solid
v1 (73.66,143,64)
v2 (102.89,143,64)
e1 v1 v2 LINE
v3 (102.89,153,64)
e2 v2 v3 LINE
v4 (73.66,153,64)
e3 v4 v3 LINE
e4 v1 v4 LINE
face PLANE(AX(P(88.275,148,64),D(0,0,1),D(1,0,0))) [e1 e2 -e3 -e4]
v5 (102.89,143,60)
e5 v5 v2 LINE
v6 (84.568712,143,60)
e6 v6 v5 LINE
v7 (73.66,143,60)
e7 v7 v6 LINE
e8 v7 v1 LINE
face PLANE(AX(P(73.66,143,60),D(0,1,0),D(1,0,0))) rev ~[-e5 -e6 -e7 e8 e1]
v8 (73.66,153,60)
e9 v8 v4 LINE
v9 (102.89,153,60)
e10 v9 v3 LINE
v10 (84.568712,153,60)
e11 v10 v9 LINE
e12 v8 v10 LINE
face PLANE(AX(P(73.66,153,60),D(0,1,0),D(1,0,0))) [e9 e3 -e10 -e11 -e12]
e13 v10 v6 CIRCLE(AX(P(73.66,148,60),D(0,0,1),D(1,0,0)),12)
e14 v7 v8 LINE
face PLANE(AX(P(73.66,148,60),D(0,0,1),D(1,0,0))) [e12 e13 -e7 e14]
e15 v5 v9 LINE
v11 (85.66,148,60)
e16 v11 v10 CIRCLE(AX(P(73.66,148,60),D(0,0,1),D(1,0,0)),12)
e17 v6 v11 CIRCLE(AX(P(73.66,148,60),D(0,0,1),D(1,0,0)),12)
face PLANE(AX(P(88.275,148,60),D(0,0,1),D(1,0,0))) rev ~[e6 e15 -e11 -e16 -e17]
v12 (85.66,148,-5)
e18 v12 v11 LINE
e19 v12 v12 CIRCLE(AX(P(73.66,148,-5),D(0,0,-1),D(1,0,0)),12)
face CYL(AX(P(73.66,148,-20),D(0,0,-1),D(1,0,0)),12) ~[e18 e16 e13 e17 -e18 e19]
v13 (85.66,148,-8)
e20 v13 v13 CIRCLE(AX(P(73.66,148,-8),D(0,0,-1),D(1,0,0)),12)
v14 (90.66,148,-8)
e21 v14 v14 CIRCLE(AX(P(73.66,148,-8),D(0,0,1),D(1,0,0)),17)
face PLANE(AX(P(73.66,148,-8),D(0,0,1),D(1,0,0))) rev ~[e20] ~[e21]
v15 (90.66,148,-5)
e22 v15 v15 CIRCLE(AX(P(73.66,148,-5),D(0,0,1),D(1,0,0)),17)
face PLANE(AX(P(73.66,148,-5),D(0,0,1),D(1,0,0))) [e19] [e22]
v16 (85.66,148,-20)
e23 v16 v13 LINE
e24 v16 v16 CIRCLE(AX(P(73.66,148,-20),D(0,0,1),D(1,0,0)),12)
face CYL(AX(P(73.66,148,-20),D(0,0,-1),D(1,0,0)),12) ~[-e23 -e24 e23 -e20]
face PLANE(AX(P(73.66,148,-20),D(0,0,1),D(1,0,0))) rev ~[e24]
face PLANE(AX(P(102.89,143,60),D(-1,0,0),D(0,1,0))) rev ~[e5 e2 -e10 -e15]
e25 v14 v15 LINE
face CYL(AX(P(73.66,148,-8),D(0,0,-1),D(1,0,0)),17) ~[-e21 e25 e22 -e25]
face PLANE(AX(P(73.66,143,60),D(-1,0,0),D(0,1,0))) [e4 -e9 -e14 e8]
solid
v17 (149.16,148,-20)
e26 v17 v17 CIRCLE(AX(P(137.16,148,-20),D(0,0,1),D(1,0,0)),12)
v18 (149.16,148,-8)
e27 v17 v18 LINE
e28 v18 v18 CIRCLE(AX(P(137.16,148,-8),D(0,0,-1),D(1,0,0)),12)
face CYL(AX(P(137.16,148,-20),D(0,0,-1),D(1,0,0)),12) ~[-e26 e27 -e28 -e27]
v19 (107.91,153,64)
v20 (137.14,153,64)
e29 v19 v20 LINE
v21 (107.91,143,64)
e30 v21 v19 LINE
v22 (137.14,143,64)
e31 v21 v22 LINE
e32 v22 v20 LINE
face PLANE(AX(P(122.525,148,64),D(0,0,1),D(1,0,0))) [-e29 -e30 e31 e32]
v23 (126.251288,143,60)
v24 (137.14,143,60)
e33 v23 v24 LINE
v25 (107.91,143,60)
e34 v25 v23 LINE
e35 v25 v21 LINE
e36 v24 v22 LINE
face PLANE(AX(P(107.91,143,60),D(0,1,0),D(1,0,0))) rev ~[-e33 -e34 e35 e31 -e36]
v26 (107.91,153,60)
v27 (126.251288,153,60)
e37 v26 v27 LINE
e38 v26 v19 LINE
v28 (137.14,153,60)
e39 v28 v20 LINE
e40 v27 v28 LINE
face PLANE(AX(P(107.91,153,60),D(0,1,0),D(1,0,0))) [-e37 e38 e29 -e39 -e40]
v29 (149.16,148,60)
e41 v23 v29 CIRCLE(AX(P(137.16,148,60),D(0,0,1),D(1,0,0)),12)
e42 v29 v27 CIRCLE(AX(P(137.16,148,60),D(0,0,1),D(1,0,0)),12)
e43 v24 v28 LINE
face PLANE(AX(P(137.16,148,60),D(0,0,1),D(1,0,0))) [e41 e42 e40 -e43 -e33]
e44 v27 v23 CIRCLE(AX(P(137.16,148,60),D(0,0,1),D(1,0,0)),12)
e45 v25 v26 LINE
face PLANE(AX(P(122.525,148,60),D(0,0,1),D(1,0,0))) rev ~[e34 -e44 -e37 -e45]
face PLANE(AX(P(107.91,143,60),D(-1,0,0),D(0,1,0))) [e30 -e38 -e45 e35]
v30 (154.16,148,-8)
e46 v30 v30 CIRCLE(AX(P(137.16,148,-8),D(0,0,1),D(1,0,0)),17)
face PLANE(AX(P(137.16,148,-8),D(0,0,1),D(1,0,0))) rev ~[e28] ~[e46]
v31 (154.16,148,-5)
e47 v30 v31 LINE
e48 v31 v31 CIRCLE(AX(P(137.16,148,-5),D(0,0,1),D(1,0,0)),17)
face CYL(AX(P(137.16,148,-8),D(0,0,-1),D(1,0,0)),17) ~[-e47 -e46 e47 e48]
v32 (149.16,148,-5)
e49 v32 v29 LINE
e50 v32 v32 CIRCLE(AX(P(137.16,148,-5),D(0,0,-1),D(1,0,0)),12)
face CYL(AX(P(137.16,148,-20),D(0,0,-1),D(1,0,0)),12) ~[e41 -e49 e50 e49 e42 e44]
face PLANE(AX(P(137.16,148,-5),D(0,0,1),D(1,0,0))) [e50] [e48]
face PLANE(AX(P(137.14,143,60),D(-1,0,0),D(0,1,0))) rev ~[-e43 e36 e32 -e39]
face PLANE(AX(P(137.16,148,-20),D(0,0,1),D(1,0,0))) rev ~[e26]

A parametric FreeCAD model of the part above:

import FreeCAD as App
import Part
import Sketcher


def add_polygon(sketch, points):
    """Adds a closed chain of lines whose ends are joined by coincident constraints."""
    first, n = sketch.GeometryCount, len(points)
    for a, b in zip(points, points[1:] + points[:1]):
        sketch.addGeometry(Part.LineSegment(App.Vector(*a, 0), App.Vector(*b, 0)), False)
    for i in range(n):
        sketch.addConstraint(Sketcher.Constraint("Coincident", first + i, 2, first + (i + 1) % n, 1))

doc = App.newDocument("Part")
body = doc.addObject("PartDesign::Body", "Body")

sketch1 = body.newObject("Sketcher::SketchObject", "Sketch")
sketch1.AttachmentSupport = (doc.getObject("XY_Plane"), [""])
sketch1.MapMode = "FlatFace"
sketch1.AttachmentOffset = App.Placement(App.Vector(0, 0, -8), App.Rotation())
sketch1.addGeometry(Part.Circle(App.Vector(74, 148, 0), App.Vector(0, 0, 1), 17), False)
sketch1.addConstraint(Sketcher.Constraint("Diameter", 0, 34.0))
sketch1.addConstraint(Sketcher.Constraint("DistanceY", -1, 1, 0, 3, 148.0))
sketch1.addConstraint(Sketcher.Constraint("DistanceX", -1, 1, 0, 3, 73.66))
pad1 = body.newObject("PartDesign::Pad", "Pad")
pad1.Profile = sketch1
pad1.Length = 3
body2 = doc.addObject("PartDesign::Body", "Body001")

sketch2 = body2.newObject("Sketcher::SketchObject", "Sketch001")
sketch2.AttachmentSupport = (doc.getObject("XY_Plane001"), [""])
sketch2.MapMode = "FlatFace"
sketch2.AttachmentOffset = App.Placement(App.Vector(0, 0, -20), App.Rotation())
sketch2.addGeometry(Part.Circle(App.Vector(74, 148, 0), App.Vector(0, 0, 1), 12), False)
sketch2.addConstraint(Sketcher.Constraint("Diameter", 0, 24.0))
sketch2.addConstraint(Sketcher.Constraint("DistanceY", -1, 1, 0, 3, 148.0))
sketch2.addConstraint(Sketcher.Constraint("DistanceX", -1, 1, 0, 3, 73.66))
pad2 = body2.newObject("PartDesign::Pad", "Pad001")
pad2.Profile = sketch2
pad2.Length = 80
doc.recompute()

boolean = body2.newObject("PartDesign::Boolean", "Boolean")
boolean.Type = "Fuse"
boolean.addObjects([body])
body3 = doc.addObject("PartDesign::Body", "Body002")

sketch3 = body3.newObject("Sketcher::SketchObject", "Sketch002")
sketch3.AttachmentSupport = (doc.getObject("XY_Plane002"), [""])
sketch3.MapMode = "FlatFace"
sketch3.AttachmentOffset = App.Placement(App.Vector(0, 0, -8), App.Rotation())
sketch3.addGeometry(Part.Circle(App.Vector(74, 148, 0), App.Vector(0, 0, 1), 17), False)
sketch3.addConstraint(Sketcher.Constraint("Diameter", 0, 34.0))
sketch3.addConstraint(Sketcher.Constraint("DistanceY", -1, 1, 0, 3, 148.0))
sketch3.addConstraint(Sketcher.Constraint("DistanceX", -1, 1, 0, 3, 73.66))
pad3 = body3.newObject("PartDesign::Pad", "Pad002")
pad3.Profile = sketch3
pad3.Length = 3
body4 = doc.addObject("PartDesign::Body", "Body003")

sketch4 = body4.newObject("Sketcher::SketchObject", "Sketch003")
sketch4.AttachmentSupport = (doc.getObject("XY_Plane003"), [""])
sketch4.MapMode = "FlatFace"
sketch4.AttachmentOffset = App.Placement(App.Vector(0, 0, -20), App.Rotation())
sketch4.addGeometry(Part.Circle(App.Vector(74, 148, 0), App.Vector(0, 0, 1), 12), False)
sketch4.addConstraint(Sketcher.Constraint("Diameter", 0, 24.0))
sketch4.addConstraint(Sketcher.Constraint("DistanceY", -1, 1, 0, 3, 148.0))
sketch4.addConstraint(Sketcher.Constraint("DistanceX", -1, 1, 0, 3, 73.66))
pad4 = body4.newObject("PartDesign::Pad", "Pad003")
pad4.Profile = sketch4
pad4.Length = 80
doc.recompute()

boolean2 = body4.newObject("PartDesign::Boolean", "Boolean001")
boolean2.Type = "Fuse"
boolean2.addObjects([body3])
body5 = doc.addObject("PartDesign::Body", "Body004")
doc.recompute()

body4.Placement = App.Placement(App.Vector(63.5, 0, 0), App.Rotation(App.Vector(0, 0, 1), 0))
boolean3 = body5.newObject("PartDesign::Boolean", "Boolean002")
boolean3.Type = "Fuse"
boolean3.addObjects([body4])
body6 = doc.addObject("PartDesign::Body", "Body005")

sketch5 = body6.newObject("Sketcher::SketchObject", "Sketch004")
sketch5.AttachmentSupport = (doc.getObject("XY_Plane005"), [""])
sketch5.MapMode = "FlatFace"
sketch5.AttachmentOffset = App.Placement(App.Vector(0, 0, 60), App.Rotation())
add_polygon(sketch5, [(108, 153), (108, 143), (137, 143), (137, 153)])
sketch5.addConstraint(Sketcher.Constraint("Vertical", 0))
sketch5.addConstraint(Sketcher.Constraint("Horizontal", 1))
sketch5.addConstraint(Sketcher.Constraint("Vertical", 2))
sketch5.addConstraint(Sketcher.Constraint("Horizontal", 3))
sketch5.addConstraint(Sketcher.Constraint("DistanceY", 0, 2, 0, 1, 10.0))
sketch5.addConstraint(Sketcher.Constraint("DistanceY", -1, 1, 0, 2, 143.0))
sketch5.addConstraint(Sketcher.Constraint("DistanceX", 1, 1, 1, 2, 29.23))
sketch5.addConstraint(Sketcher.Constraint("DistanceX", -1, 1, 0, 2, 107.91))
pad5 = body6.newObject("PartDesign::Pad", "Pad004")
pad5.Profile = sketch5
pad5.Length = 4
body7 = doc.addObject("PartDesign::Body", "Body006")
body7.AllowCompound = True

sketch6 = body7.newObject("Sketcher::SketchObject", "Sketch005")
sketch6.AttachmentSupport = (doc.getObject("XY_Plane006"), [""])
sketch6.MapMode = "FlatFace"
sketch6.AttachmentOffset = App.Placement(App.Vector(0, 0, 60), App.Rotation())
add_polygon(sketch6, [(74, 153), (74, 143), (103, 143), (103, 153)])
sketch6.addConstraint(Sketcher.Constraint("Vertical", 0))
sketch6.addConstraint(Sketcher.Constraint("Horizontal", 1))
sketch6.addConstraint(Sketcher.Constraint("Vertical", 2))
sketch6.addConstraint(Sketcher.Constraint("Horizontal", 3))
sketch6.addConstraint(Sketcher.Constraint("DistanceY", 0, 2, 0, 1, 10.0))
sketch6.addConstraint(Sketcher.Constraint("DistanceY", -1, 1, 0, 2, 143.0))
sketch6.addConstraint(Sketcher.Constraint("DistanceX", 1, 1, 1, 2, 29.23))
sketch6.addConstraint(Sketcher.Constraint("DistanceX", -1, 1, 0, 2, 73.66))
pad6 = body7.newObject("PartDesign::Pad", "Pad005")
pad6.Profile = sketch6
pad6.Length = 4
doc.recompute()

boolean4 = body7.newObject("PartDesign::Boolean", "Boolean003")
boolean4.Type = "Fuse"
boolean4.addObjects([body2])
doc.recompute()

boolean5 = body7.newObject("PartDesign::Boolean", "Boolean004")
boolean5.Type = "Fuse"
boolean5.addObjects([body5])
doc.recompute()

boolean6 = body7.newObject("PartDesign::Boolean", "Boolean005")
boolean6.Type = "Fuse"
boolean6.addObjects([body6])

doc.recompute()
